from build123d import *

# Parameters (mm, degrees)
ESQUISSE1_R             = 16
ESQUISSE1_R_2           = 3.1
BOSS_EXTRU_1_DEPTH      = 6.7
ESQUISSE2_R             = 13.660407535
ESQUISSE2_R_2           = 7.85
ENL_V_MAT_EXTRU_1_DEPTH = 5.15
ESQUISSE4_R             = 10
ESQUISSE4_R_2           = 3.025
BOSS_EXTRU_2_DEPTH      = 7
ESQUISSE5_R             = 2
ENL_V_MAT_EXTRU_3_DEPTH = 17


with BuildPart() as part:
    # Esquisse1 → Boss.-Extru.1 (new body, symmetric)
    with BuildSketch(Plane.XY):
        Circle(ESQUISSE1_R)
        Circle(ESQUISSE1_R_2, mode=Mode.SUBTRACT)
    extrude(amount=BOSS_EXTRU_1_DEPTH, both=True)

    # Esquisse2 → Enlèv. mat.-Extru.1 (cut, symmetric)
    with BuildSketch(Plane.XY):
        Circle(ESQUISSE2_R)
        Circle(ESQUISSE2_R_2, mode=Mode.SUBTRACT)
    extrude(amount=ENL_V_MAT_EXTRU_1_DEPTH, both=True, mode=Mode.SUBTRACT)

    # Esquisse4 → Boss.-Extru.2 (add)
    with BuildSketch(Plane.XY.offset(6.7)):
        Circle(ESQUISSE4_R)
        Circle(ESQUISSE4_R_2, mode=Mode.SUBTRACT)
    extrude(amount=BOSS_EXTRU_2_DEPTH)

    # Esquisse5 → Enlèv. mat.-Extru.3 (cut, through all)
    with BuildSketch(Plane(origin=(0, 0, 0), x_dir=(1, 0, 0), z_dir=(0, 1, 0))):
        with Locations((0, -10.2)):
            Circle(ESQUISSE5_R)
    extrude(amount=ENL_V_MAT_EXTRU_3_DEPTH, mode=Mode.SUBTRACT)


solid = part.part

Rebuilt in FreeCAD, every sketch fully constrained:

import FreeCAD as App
import Part
import Sketcher
Q = App.Units.Quantity

doc = App.newDocument("Part")
body = doc.addObject("PartDesign::Body", "Body")

sketch1 = body.newObject("Sketcher::SketchObject", "Sketch")
sketch1.AttachmentSupport = (doc.getObject("XY_Plane"), [""])
sketch1.MapMode = "FlatFace"
sketch1.addGeometry([
    Part.Circle(App.Vector(0, 0, 0), App.Vector(0, 0, 1), 16),
    Part.Circle(App.Vector(0, 0, 0), App.Vector(0, 0, 1), 3.1),
], False)
sketch1.addConstraint([
    Sketcher.Constraint("Coincident", 0, 3, -1, 1),
    Sketcher.Constraint("Coincident", 1, 3, -1, 1),
    Sketcher.Constraint("Diameter", 0, Q("32 mm")),
    Sketcher.Constraint("Diameter", 1, Q("6.2 mm")),
])
pad1 = body.newObject("PartDesign::Pad", "Pad")
pad1.Profile = sketch1
pad1.Length = 13.4
pad1.Midplane = True

sketch2 = body.newObject("Sketcher::SketchObject", "Sketch001")
sketch2.AttachmentSupport = (doc.getObject("XY_Plane"), [""])
sketch2.MapMode = "FlatFace"
sketch2.addGeometry([
    Part.Circle(App.Vector(0, 0, 0), App.Vector(0, 0, 1), 13.660408),
    Part.Circle(App.Vector(0, 0, 0), App.Vector(0, 0, 1), 7.85),
], False)
sketch2.addConstraint([
    Sketcher.Constraint("Coincident", 0, 3, -1, 1),
    Sketcher.Constraint("Coincident", 1, 3, -1, 1),
    Sketcher.Constraint("Diameter", 1, Q("15.7 mm")),
    Sketcher.Constraint("Diameter", 0, Q("27.320815 mm")),
])
pocket1 = body.newObject("PartDesign::Pocket", "Pocket")
pocket1.Profile = sketch2
pocket1.Length = 10.3
pocket1.Midplane = True

sketch3 = body.newObject("Sketcher::SketchObject", "Sketch002")
sketch3.AttachmentSupport = (doc.getObject("XY_Plane"), [""])
sketch3.MapMode = "FlatFace"
sketch3.AttachmentOffset = App.Placement(App.Vector(0, 0, 6.7), App.Rotation())
sketch3.addGeometry([
    Part.Circle(App.Vector(0, 0, 0), App.Vector(0, 0, 1), 10),
    Part.Circle(App.Vector(0, 0, 0), App.Vector(0, 0, 1), 3.025),
], False)
sketch3.addConstraint([
    Sketcher.Constraint("Coincident", 0, 3, -1, 1),
    Sketcher.Constraint("Coincident", 1, 3, -1, 1),
    Sketcher.Constraint("Diameter", 0, Q("20 mm")),
    Sketcher.Constraint("Diameter", 1, Q("6.05 mm")),
])
pad2 = body.newObject("PartDesign::Pad", "Pad001")
pad2.Profile = sketch3
pad2.Length = 7

sketch4 = body.newObject("Sketcher::SketchObject", "Sketch003")
sketch4.AttachmentSupport = (doc.getObject("XZ_Plane"), [""])
sketch4.MapMode = "FlatFace"
sketch4.addGeometry(Part.Circle(App.Vector(0, 10.2, 0), App.Vector(0, 0, 1), 2), False)
sketch4.addConstraint([
    Sketcher.Constraint("PointOnObject", 0, 3, -2),
    Sketcher.Constraint("Diameter", 0, Q("4 mm")),
    Sketcher.Constraint("DistanceY", -1, 1, 0, 3, Q("10.2 mm")),
])
pocket2 = body.newObject("PartDesign::Pocket", "Pocket001")
pocket2.Profile = sketch4
pocket2.Type = "ThroughAll"

doc.recompute()
